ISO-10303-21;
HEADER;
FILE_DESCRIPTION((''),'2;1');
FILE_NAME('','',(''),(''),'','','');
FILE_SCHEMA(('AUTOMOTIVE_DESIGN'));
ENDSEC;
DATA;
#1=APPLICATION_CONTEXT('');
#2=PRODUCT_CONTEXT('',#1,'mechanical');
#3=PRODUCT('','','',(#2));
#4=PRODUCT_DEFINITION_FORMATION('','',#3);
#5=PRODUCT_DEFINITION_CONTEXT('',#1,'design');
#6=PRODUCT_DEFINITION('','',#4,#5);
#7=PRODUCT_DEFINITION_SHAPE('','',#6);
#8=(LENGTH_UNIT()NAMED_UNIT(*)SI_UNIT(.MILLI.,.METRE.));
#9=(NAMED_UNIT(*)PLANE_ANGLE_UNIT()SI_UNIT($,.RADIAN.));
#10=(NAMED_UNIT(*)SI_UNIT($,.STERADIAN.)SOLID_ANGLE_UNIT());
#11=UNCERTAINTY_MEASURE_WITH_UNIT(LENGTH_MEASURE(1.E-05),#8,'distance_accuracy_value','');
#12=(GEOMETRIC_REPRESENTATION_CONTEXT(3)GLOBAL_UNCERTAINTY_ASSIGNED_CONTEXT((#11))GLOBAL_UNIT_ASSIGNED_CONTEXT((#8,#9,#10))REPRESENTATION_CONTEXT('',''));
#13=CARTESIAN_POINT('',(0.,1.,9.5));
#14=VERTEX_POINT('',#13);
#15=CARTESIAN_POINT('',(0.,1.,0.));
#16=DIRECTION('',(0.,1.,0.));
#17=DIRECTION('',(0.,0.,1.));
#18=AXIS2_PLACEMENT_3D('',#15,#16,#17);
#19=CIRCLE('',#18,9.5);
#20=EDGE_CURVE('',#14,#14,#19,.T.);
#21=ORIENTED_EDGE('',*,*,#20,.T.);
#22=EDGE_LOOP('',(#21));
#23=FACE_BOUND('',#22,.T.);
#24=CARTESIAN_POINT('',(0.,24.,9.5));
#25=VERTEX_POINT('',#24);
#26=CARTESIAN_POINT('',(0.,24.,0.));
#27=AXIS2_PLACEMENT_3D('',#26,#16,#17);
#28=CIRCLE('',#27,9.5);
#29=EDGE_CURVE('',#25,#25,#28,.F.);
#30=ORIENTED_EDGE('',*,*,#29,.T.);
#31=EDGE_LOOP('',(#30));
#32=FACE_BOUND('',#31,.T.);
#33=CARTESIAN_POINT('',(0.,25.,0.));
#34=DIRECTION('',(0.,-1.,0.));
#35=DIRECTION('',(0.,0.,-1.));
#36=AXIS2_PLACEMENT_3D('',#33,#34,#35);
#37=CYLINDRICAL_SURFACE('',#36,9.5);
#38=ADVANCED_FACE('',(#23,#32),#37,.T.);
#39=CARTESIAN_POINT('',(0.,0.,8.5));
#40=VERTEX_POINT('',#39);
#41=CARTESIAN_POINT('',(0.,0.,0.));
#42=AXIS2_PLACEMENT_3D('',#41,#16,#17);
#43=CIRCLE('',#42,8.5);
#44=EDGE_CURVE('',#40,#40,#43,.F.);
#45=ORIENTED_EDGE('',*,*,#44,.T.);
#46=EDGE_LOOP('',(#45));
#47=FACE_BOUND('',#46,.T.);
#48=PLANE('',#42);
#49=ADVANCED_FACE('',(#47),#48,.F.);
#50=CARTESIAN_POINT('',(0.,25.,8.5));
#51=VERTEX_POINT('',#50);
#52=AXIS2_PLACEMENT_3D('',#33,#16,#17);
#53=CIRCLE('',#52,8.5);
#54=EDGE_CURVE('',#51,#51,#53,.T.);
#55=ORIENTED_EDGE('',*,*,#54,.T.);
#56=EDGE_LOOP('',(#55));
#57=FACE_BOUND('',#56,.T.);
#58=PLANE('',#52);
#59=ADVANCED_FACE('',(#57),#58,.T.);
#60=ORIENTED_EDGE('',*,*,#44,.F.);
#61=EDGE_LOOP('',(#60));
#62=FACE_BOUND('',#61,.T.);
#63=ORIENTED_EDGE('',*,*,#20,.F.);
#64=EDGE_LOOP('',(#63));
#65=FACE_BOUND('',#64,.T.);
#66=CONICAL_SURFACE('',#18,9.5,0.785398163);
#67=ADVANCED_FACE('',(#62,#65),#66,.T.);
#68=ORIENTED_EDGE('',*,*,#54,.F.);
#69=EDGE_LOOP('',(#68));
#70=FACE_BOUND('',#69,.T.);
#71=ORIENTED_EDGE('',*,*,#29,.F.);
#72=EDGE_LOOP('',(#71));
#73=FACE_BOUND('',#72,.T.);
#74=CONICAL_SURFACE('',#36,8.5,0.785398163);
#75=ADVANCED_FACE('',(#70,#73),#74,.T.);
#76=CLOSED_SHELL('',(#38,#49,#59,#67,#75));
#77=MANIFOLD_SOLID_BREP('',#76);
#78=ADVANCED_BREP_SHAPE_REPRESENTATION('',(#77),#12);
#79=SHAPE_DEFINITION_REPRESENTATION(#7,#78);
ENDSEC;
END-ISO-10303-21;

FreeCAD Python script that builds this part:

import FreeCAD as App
import Part
import Sketcher
from FreeCAD import Vector


def edges_at(feature, points):
    """Names of the edges that pass closest to the given points."""
    edges = feature.Shape.Edges
    near = lambda p: min(range(len(edges)), key=lambda i: edges[i].distToShape(Part.Vertex(*p))[0])
    return sorted({f"Edge{near(p) + 1}" for p in points})

doc = App.newDocument("Part")
params = doc.addObject("Spreadsheet::Sheet", "Params")
for row, (alias, value) in enumerate([
    ("sketch1_diameter", "19 mm"),
    ("pad1_length", "25 mm"),
    ("chamfer_size", "1 mm"),
], start=1):
    params.set(f"A{row}", alias)
    params.set(f"B{row}", "=" + value)
    params.setAlias(f"B{row}", alias)

body = doc.addObject("PartDesign::Body", "Body")

sketch1 = body.newObject("Sketcher::SketchObject", "Sketch")
sketch1.AttachmentSupport = (doc.getObject("XZ_Plane"), [""])
sketch1.MapMode = "FlatFace"
sketch1.addGeometry(Part.Circle(Vector(0, 0, 0), Vector(0, 0, 1), 9.5), False)
sketch1.addConstraint([
    Sketcher.Constraint("Coincident", 0, 3, -1, 1),
    Sketcher.Constraint("Diameter", 0, 19.0),
])
sketch1.setExpression("Constraints[1]", "Params.sketch1_diameter")
pad1 = body.newObject("PartDesign::Pad", "Pad")
pad1.Profile = sketch1
pad1.setExpression("Length", "Params.pad1_length")
pad1.Reversed = True
doc.recompute()

chamfer = body.newObject("PartDesign::Chamfer", "Chamfer")
chamfer.Base = (pad1, edges_at(pad1, [(0, 0, -9.5), (0, 25, -9.5)]))
chamfer.setExpression("Size", "Params.chamfer_size")

doc.recompute()
